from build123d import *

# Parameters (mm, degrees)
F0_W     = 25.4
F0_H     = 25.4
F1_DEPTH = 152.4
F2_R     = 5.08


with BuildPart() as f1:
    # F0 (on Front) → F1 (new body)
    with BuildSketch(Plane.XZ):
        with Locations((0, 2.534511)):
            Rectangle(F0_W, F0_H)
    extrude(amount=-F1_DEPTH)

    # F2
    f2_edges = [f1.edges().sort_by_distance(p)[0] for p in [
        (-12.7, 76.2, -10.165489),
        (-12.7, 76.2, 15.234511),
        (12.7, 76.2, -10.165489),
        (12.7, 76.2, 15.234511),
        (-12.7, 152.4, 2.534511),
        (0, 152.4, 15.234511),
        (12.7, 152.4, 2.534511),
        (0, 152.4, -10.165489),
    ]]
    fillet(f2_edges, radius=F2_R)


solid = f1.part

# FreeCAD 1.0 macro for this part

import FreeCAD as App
import Part
import Sketcher
Q = App.Units.Quantity


def edges_at(feature, points):
    """Names of the edges that pass closest to the given points."""
    edges = feature.Shape.Edges
    near = lambda p: min(range(len(edges)), key=lambda i: edges[i].distToShape(Part.Vertex(*p))[0])
    return sorted({f"Edge{near(p) + 1}" for p in points})

doc = App.newDocument("Part")
body = doc.addObject("PartDesign::Body", "Body")

# Sketch on XZ plane
sketch1 = body.newObject("Sketcher::SketchObject", "Sketch")
sketch1.AttachmentSupport = (doc.getObject("XZ_Plane"), [""])
sketch1.MapMode = "FlatFace"
sketch1.addGeometry([
    Part.LineSegment(App.Vector(-13, 15, 0), App.Vector(-13, -10, 0)),
    Part.LineSegment(App.Vector(-13, -10, 0), App.Vector(13, -10, 0)),
    Part.LineSegment(App.Vector(13, -10, 0), App.Vector(13, 15, 0)),
    Part.LineSegment(App.Vector(13, 15, 0), App.Vector(-13, 15, 0)),
], False)
sketch1.addConstraint([
    Sketcher.Constraint("Coincident", 0, 2, 1, 1),
    Sketcher.Constraint("Coincident", 1, 2, 2, 1),
    Sketcher.Constraint("Coincident", 2, 2, 3, 1),
    Sketcher.Constraint("Coincident", 3, 2, 0, 1),
    Sketcher.Constraint("Vertical", 0),
    Sketcher.Constraint("Horizontal", 1),
    Sketcher.Constraint("Vertical", 2),
    Sketcher.Constraint("Horizontal", 3),
    Sketcher.Constraint("Equal", 3, 0),
    Sketcher.Constraint("DistanceX", 1, 1, 1, 2, Q("1 in")),
    Sketcher.Constraint("DistanceX", 0, 2, -1, 1, Q("0.5 in")),
    Sketcher.Constraint("DistanceY", 0, 2, -1, 1, Q("10.165489 mm")),
])
pad1 = body.newObject("PartDesign::Pad", "Pad")
pad1.Profile = sketch1
pad1.Length = Q("6 in")
pad1.Reversed = True
doc.recompute()

fillet = body.newObject("PartDesign::Fillet", "Fillet")
fillet.Base = (pad1, edges_at(pad1, [
    (-12.7, 76.2, -10.165),
    (-12.7, 76.2, 15.235),
    (12.7, 76.2, -10.165),
    (12.7, 76.2, 15.235),
    (-12.7, 152.4, 2.535),
    (0, 152.4, 15.235),
    (12.7, 152.4, 2.535),
    (0, 152.4, -10.165),
]))
fillet.Radius = Q("0.2 in")

doc.recompute()
